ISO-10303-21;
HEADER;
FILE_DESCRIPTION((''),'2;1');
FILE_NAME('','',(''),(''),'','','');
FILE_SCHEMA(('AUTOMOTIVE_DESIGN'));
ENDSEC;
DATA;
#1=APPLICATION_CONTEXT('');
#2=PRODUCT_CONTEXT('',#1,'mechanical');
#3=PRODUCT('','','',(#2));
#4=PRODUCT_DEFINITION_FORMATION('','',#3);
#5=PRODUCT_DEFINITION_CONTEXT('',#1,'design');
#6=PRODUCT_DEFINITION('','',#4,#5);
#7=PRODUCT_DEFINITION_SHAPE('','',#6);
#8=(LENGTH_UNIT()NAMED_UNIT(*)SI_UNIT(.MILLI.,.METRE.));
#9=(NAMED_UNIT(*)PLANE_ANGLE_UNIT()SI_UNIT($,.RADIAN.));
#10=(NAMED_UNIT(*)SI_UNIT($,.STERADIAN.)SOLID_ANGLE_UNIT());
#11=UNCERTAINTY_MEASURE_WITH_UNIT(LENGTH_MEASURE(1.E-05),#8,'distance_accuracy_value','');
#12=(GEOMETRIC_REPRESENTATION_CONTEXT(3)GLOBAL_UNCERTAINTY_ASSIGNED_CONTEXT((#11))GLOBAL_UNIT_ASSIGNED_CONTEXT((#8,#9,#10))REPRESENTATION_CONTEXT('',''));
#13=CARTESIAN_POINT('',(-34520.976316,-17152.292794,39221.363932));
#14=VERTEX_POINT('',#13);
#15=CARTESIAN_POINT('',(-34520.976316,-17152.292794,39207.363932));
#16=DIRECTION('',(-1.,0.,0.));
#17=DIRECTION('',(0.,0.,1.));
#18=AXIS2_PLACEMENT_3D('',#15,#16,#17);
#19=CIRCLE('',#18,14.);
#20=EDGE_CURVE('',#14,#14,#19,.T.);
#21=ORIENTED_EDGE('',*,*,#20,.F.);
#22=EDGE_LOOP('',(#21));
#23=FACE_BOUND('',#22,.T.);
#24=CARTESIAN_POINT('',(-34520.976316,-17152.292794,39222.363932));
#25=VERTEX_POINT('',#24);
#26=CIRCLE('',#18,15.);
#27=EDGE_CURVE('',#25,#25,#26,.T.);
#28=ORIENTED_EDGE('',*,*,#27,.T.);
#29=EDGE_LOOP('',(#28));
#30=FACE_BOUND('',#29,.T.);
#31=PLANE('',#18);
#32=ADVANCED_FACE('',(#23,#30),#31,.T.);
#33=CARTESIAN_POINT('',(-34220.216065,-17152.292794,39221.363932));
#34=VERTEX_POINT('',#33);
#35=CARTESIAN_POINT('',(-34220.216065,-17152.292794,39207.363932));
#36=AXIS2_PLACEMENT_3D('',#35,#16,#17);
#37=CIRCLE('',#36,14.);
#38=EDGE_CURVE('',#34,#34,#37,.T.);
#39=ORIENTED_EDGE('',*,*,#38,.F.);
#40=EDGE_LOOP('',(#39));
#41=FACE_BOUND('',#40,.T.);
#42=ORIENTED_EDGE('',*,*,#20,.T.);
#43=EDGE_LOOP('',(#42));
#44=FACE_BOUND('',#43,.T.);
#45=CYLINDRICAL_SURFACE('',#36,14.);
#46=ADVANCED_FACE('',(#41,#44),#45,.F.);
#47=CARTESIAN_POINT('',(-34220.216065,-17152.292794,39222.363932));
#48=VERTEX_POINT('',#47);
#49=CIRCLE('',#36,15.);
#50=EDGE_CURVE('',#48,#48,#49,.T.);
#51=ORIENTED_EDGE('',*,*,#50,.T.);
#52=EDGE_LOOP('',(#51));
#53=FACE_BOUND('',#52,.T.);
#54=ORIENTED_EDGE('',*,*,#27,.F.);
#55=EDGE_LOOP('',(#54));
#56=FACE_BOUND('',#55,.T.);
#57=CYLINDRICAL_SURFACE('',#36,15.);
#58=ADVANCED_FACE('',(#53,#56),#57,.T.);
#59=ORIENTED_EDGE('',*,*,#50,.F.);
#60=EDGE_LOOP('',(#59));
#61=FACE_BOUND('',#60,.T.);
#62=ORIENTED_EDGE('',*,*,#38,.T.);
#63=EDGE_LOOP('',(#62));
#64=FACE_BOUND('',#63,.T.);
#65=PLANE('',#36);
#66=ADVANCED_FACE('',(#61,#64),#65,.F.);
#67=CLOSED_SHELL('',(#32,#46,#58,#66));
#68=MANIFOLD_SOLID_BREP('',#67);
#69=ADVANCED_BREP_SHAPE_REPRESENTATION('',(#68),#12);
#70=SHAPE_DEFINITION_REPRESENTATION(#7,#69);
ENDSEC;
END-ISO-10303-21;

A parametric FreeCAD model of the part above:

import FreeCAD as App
import Part
import Sketcher
Q = App.Units.Quantity

doc = App.newDocument("Part")
body = doc.addObject("PartDesign::Body", "Body")

# Sketch on YZ plane
sketch1 = body.newObject("Sketcher::SketchObject", "Sketch")
sketch1.AttachmentSupport = (doc.getObject("YZ_Plane"), [""])
sketch1.MapMode = "FlatFace"
sketch1.AttachmentOffset = App.Placement(App.Vector(0, 0, -34220.216065), App.Rotation())
sketch1.addGeometry([
    Part.Circle(App.Vector(-17152, 39207, 0), App.Vector(0, 0, 1), 15),
    Part.Circle(App.Vector(-17152, 39207, 0), App.Vector(0, 0, 1), 14),
], False)
sketch1.addConstraint([
    Sketcher.Constraint("Coincident", 1, 3, 0, 3),
    Sketcher.Constraint("Diameter", 0, Q("30 mm")),
    Sketcher.Constraint("Diameter", 1, Q("28 mm")),
    Sketcher.Constraint("DistanceY", -1, 1, 0, 3, Q("39207.363932 mm")),
    Sketcher.Constraint("DistanceX", 0, 3, -1, 1, Q("17152.292794 mm")),
])

# Sketch on XY plane
sketch2 = body.newObject("Sketcher::SketchObject", "Sketch001")
sketch2.AttachmentSupport = (doc.getObject("XY_Plane"), [""])
sketch2.MapMode = "FlatFace"
sketch2.AttachmentOffset = App.Placement(App.Vector(0, 0, 39207.363932), App.Rotation())
sketch2.addGeometry(Part.LineSegment(App.Vector(-34220, -17152, 0), App.Vector(-34521, -17152, 0)), False)
sketch2.addConstraint([
    Sketcher.Constraint("Horizontal", 0),
    Sketcher.Constraint("DistanceX", 0, 2, 0, 1, Q("300.760252 mm")),
    Sketcher.Constraint("DistanceX", 0, 1, -1, 1, Q("34220.216065 mm")),
    Sketcher.Constraint("DistanceY", 0, 1, -1, 1, Q("17152.292794 mm")),
])
doc.recompute()

additivepipe = body.newObject("PartDesign::AdditivePipe", "AdditivePipe")
additivepipe.Profile = sketch1
additivepipe.Spine = (sketch2, ["Edge1"])

doc.recompute()
